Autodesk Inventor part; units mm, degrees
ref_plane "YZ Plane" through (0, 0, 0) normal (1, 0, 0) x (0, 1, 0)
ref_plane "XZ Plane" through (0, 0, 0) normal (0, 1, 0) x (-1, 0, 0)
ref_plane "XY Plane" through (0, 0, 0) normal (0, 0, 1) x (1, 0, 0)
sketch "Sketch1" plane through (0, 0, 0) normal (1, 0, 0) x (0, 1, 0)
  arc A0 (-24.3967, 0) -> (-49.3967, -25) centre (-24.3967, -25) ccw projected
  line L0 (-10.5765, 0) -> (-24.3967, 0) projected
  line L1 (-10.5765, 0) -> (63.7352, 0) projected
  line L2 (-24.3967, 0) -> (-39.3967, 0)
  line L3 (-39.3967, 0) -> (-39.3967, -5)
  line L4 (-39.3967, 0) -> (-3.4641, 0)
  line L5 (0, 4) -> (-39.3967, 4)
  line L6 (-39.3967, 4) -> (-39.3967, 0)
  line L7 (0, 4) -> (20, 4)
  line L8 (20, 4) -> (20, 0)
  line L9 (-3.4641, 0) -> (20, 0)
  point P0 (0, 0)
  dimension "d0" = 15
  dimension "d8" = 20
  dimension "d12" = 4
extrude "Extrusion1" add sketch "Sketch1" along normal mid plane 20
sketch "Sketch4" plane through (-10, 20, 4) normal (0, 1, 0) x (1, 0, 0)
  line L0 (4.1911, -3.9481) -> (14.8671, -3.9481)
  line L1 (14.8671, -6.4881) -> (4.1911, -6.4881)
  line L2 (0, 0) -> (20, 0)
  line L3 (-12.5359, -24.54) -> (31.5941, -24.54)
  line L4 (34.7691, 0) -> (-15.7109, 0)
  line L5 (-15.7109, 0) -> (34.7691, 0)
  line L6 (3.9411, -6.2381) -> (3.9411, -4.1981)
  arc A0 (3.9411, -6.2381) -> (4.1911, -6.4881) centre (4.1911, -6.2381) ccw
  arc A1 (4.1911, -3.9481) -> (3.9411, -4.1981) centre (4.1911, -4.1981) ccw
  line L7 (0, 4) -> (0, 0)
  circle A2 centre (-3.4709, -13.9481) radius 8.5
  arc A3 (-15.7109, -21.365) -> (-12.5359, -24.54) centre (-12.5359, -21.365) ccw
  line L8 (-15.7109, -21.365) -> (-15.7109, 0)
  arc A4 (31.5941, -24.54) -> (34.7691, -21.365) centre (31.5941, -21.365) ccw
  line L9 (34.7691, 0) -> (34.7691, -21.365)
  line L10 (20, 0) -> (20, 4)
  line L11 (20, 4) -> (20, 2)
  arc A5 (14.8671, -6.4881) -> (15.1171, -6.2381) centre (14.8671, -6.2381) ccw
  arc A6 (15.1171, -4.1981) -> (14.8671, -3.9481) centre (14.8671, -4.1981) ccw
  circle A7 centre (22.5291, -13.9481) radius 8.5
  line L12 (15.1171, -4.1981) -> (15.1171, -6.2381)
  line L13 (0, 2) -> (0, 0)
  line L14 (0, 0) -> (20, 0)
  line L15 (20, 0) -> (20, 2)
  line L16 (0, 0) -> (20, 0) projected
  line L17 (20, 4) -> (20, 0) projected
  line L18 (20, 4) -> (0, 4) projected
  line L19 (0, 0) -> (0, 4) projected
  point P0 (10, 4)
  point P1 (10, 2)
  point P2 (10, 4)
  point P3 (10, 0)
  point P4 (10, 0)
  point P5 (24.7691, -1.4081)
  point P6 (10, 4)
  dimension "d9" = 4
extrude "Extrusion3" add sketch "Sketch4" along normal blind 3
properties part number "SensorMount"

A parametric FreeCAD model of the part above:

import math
import FreeCAD as App
import Part
import Sketcher

V = App.Vector
Q = App.Units.Quantity

doc = App.newDocument("Part")
body = doc.addObject("PartDesign::Body", "Body")

# Sketch on YZ plane
sketch1 = body.newObject("Sketcher::SketchObject", "Sketch")
sketch1.AttachmentSupport = (doc.getObject("YZ_Plane"), [""])
sketch1.MapMode = "FlatFace"
sketch1.addGeometry([
    Part.LineSegment(V(-39.4, 4, 0), V(-39.4, -5, 0)),  # 0
    Part.ArcOfCircle(Part.Circle(V(-24.4, -25, 0), V(0, 0, 1), 25), math.radians(90), math.radians(127)),  # 1
    Part.LineSegment(V(-24.4, 0, 0), V(20, 0, 0)),  # 2
    Part.LineSegment(V(20, 0, 0), V(20, 4, 0)),  # 3
    Part.LineSegment(V(20, 4, 0), V(-39.4, 4, 0)),  # 4
], False)
sketch1.addConstraint([
    Sketcher.Constraint("Coincident", 0, 2, 1, 2),
    Sketcher.Constraint("Tangent", 1, 1, 2, 1),
    Sketcher.Constraint("Coincident", 2, 2, 3, 1),
    Sketcher.Constraint("Coincident", 3, 2, 4, 1),
    Sketcher.Constraint("Coincident", 4, 2, 0, 1),
    Sketcher.Constraint("Vertical", 0),
    Sketcher.Constraint("Horizontal", 2),
    Sketcher.Constraint("Vertical", 3),
    Sketcher.Constraint("Horizontal", 4),
    Sketcher.Constraint("PointOnObject", 1, 1, -1),
    Sketcher.Constraint("DistanceY", 3, 1, 3, 2, Q("4 mm")),
    Sketcher.Constraint("DistanceX", -1, 1, 2, 2, Q("20 mm")),
    Sketcher.Constraint("Radius", 1, Q("25 mm")),
    Sketcher.Constraint("DistanceX", 0, 2, 1, 3, Q("15 mm")),
    Sketcher.Constraint("DistanceX", 2, 1, 2, 2, Q("44.3967 mm")),
])
pad1 = body.newObject("PartDesign::Pad", "Pad")
pad1.Profile = sketch1
pad1.Length = 20
pad1.Midplane = True

# Sketch on XZ plane
sketch2 = body.newObject("Sketcher::SketchObject", "Sketch001")
sketch2.AttachmentSupport = (doc.getObject("XZ_Plane"), [""])
sketch2.MapMode = "FlatFace"
sketch2.AttachmentOffset = App.Placement(V(0, 0, -20), App.Rotation())
sketch2.addGeometry([
    Part.LineSegment(V(-10, 4, 0), V(-25.71, 4, 0)),  # 0
    Part.LineSegment(V(-25.71, 4, 0), V(-25.71, 25.36, 0)),  # 1
    Part.ArcOfCircle(Part.Circle(V(-22.54, 25.36, 0), V(0, 0, 1), 3.18), math.radians(90), math.radians(180)),  # 2
    Part.LineSegment(V(-22.54, 28.54, 0), V(21.59, 28.54, 0)),  # 3
    Part.ArcOfCircle(Part.Circle(V(21.59, 25.36, 0), V(0, 0, 1), 3.18), math.radians(0), math.radians(90)),  # 4
    Part.LineSegment(V(24.77, 25.36, 0), V(24.77, 4, 0)),  # 5
    Part.LineSegment(V(24.77, 4, 0), V(10, 4, 0)),  # 6
    Part.LineSegment(V(10, 4, 0), V(10, 0, 0)),  # 7
    Part.LineSegment(V(10, 0, 0), V(-10, 0, 0)),  # 8
    Part.LineSegment(V(-10, 0, 0), V(-10, 4, 0)),  # 9
    Part.LineSegment(V(-5.81, 7.95, 0), V(4.87, 7.95, 0)),  # 10
    Part.ArcOfCircle(Part.Circle(V(4.87, 8.2, 0), V(0, 0, 1), 0.25), math.radians(-90), math.radians(0)),  # 11
    Part.LineSegment(V(5.12, 8.2, 0), V(5.12, 10.24, 0)),  # 12
    Part.ArcOfCircle(Part.Circle(V(4.87, 10.24, 0), V(0, 0, 1), 0.25), math.radians(0), math.radians(90)),  # 13
    Part.LineSegment(V(4.87, 10.49, 0), V(-5.81, 10.49, 0)),  # 14
    Part.ArcOfCircle(Part.Circle(V(-5.81, 10.24, 0), V(0, 0, 1), 0.25), math.radians(90), math.radians(180)),  # 15
    Part.LineSegment(V(-6.06, 10.24, 0), V(-6.06, 8.2, 0)),  # 16
    Part.ArcOfCircle(Part.Circle(V(-5.81, 8.2, 0), V(0, 0, 1), 0.25), math.radians(180), math.radians(270)),  # 17
    Part.Circle(V(-13.47, 17.95, 0), V(0, 0, 1), 8.5),  # 18
    Part.Circle(V(12.53, 17.95, 0), V(0, 0, 1), 8.5),  # 19
], False)
sketch2.addConstraint([
    Sketcher.Constraint("Coincident", 0, 2, 1, 1),
    Sketcher.Constraint("Tangent", 1, 2, 2, 2),
    Sketcher.Constraint("Tangent", 2, 1, 3, 1),
    Sketcher.Constraint("Tangent", 3, 2, 4, 2),
    Sketcher.Constraint("Tangent", 4, 1, 5, 1),
    Sketcher.Constraint("Coincident", 5, 2, 6, 1),
    Sketcher.Constraint("Coincident", 6, 2, 7, 1),
    Sketcher.Constraint("Coincident", 7, 2, 8, 1),
    Sketcher.Constraint("Coincident", 8, 2, 9, 1),
    Sketcher.Constraint("Coincident", 9, 2, 0, 1),
    Sketcher.Constraint("Tangent", 10, 2, 11, 1),
    Sketcher.Constraint("Tangent", 11, 2, 12, 1),
    Sketcher.Constraint("Tangent", 12, 2, 13, 1),
    Sketcher.Constraint("Tangent", 13, 2, 14, 1),
    Sketcher.Constraint("Tangent", 14, 2, 15, 1),
    Sketcher.Constraint("Tangent", 15, 2, 16, 1),
    Sketcher.Constraint("Tangent", 16, 2, 17, 1),
    Sketcher.Constraint("Tangent", 17, 2, 10, 1),
    Sketcher.Constraint("Horizontal", 0),
    Sketcher.Constraint("Vertical", 1),
    Sketcher.Constraint("Horizontal", 3),
    Sketcher.Constraint("Vertical", 5),
    Sketcher.Constraint("Horizontal", 6),
    Sketcher.Constraint("Vertical", 7),
    Sketcher.Constraint("Horizontal", 8),
    Sketcher.Constraint("Vertical", 9),
    Sketcher.Constraint("Horizontal", 10),
    Sketcher.Constraint("Vertical", 12),
    Sketcher.Constraint("Horizontal", 14),
    Sketcher.Constraint("Vertical", 16),
    Sketcher.Constraint("Equal", 2, 4),
    Sketcher.Constraint("Equal", 11, 13),
    Sketcher.Constraint("Equal", 13, 15),
    Sketcher.Constraint("Equal", 15, 17),
    Sketcher.Constraint("Equal", 18, 19),
    Sketcher.Constraint("Symmetric", 7, 2, 8, 2, -1, 1),
    Sketcher.Constraint("Horizontal", 18, 3, 19, 3),
    Sketcher.Constraint("Horizontal", 0, 2, 5, 2),
    Sketcher.Constraint("DistanceY", 7, 2, 7, 1, Q("4 mm")),
    Sketcher.Constraint("Diameter", 18, Q("17 mm")),
    Sketcher.Constraint("DistanceX", 8, 2, 8, 1, Q("20 mm")),
    Sketcher.Constraint("Radius", 11, Q("0.25 mm")),
    Sketcher.Constraint("Radius", 2, Q("3.175 mm")),
    Sketcher.Constraint("DistanceX", 3, 1, 3, 2, Q("44.13 mm")),
    Sketcher.Constraint("DistanceY", 12, 1, 12, 2, Q("2.04 mm")),
    Sketcher.Constraint("DistanceX", 0, 2, 0, 1, Q("15.711 mm")),
    Sketcher.Constraint("DistanceX", 10, 1, 10, 2, Q("10.676 mm")),
    Sketcher.Constraint("DistanceY", 1, 1, 1, 2, Q("21.365 mm")),
    Sketcher.Constraint("DistanceY", 15, 3, 18, 3, Q("7.71 mm")),
    Sketcher.Constraint("DistanceX", 0, 2, 18, 3, Q("12.24 mm")),
    Sketcher.Constraint("DistanceX", 19, 3, 4, 1, Q("12.24 mm")),
    Sketcher.Constraint("DistanceX", -1, 1, 11, 3, Q("4.867 mm")),
    Sketcher.Constraint("DistanceY", -1, 1, 11, 3, Q("8.198 mm")),
])
pad2 = body.newObject("PartDesign::Pad", "Pad001")
pad2.Profile = sketch2
pad2.Length = 3
pad2.Reversed = True

doc.recompute()
